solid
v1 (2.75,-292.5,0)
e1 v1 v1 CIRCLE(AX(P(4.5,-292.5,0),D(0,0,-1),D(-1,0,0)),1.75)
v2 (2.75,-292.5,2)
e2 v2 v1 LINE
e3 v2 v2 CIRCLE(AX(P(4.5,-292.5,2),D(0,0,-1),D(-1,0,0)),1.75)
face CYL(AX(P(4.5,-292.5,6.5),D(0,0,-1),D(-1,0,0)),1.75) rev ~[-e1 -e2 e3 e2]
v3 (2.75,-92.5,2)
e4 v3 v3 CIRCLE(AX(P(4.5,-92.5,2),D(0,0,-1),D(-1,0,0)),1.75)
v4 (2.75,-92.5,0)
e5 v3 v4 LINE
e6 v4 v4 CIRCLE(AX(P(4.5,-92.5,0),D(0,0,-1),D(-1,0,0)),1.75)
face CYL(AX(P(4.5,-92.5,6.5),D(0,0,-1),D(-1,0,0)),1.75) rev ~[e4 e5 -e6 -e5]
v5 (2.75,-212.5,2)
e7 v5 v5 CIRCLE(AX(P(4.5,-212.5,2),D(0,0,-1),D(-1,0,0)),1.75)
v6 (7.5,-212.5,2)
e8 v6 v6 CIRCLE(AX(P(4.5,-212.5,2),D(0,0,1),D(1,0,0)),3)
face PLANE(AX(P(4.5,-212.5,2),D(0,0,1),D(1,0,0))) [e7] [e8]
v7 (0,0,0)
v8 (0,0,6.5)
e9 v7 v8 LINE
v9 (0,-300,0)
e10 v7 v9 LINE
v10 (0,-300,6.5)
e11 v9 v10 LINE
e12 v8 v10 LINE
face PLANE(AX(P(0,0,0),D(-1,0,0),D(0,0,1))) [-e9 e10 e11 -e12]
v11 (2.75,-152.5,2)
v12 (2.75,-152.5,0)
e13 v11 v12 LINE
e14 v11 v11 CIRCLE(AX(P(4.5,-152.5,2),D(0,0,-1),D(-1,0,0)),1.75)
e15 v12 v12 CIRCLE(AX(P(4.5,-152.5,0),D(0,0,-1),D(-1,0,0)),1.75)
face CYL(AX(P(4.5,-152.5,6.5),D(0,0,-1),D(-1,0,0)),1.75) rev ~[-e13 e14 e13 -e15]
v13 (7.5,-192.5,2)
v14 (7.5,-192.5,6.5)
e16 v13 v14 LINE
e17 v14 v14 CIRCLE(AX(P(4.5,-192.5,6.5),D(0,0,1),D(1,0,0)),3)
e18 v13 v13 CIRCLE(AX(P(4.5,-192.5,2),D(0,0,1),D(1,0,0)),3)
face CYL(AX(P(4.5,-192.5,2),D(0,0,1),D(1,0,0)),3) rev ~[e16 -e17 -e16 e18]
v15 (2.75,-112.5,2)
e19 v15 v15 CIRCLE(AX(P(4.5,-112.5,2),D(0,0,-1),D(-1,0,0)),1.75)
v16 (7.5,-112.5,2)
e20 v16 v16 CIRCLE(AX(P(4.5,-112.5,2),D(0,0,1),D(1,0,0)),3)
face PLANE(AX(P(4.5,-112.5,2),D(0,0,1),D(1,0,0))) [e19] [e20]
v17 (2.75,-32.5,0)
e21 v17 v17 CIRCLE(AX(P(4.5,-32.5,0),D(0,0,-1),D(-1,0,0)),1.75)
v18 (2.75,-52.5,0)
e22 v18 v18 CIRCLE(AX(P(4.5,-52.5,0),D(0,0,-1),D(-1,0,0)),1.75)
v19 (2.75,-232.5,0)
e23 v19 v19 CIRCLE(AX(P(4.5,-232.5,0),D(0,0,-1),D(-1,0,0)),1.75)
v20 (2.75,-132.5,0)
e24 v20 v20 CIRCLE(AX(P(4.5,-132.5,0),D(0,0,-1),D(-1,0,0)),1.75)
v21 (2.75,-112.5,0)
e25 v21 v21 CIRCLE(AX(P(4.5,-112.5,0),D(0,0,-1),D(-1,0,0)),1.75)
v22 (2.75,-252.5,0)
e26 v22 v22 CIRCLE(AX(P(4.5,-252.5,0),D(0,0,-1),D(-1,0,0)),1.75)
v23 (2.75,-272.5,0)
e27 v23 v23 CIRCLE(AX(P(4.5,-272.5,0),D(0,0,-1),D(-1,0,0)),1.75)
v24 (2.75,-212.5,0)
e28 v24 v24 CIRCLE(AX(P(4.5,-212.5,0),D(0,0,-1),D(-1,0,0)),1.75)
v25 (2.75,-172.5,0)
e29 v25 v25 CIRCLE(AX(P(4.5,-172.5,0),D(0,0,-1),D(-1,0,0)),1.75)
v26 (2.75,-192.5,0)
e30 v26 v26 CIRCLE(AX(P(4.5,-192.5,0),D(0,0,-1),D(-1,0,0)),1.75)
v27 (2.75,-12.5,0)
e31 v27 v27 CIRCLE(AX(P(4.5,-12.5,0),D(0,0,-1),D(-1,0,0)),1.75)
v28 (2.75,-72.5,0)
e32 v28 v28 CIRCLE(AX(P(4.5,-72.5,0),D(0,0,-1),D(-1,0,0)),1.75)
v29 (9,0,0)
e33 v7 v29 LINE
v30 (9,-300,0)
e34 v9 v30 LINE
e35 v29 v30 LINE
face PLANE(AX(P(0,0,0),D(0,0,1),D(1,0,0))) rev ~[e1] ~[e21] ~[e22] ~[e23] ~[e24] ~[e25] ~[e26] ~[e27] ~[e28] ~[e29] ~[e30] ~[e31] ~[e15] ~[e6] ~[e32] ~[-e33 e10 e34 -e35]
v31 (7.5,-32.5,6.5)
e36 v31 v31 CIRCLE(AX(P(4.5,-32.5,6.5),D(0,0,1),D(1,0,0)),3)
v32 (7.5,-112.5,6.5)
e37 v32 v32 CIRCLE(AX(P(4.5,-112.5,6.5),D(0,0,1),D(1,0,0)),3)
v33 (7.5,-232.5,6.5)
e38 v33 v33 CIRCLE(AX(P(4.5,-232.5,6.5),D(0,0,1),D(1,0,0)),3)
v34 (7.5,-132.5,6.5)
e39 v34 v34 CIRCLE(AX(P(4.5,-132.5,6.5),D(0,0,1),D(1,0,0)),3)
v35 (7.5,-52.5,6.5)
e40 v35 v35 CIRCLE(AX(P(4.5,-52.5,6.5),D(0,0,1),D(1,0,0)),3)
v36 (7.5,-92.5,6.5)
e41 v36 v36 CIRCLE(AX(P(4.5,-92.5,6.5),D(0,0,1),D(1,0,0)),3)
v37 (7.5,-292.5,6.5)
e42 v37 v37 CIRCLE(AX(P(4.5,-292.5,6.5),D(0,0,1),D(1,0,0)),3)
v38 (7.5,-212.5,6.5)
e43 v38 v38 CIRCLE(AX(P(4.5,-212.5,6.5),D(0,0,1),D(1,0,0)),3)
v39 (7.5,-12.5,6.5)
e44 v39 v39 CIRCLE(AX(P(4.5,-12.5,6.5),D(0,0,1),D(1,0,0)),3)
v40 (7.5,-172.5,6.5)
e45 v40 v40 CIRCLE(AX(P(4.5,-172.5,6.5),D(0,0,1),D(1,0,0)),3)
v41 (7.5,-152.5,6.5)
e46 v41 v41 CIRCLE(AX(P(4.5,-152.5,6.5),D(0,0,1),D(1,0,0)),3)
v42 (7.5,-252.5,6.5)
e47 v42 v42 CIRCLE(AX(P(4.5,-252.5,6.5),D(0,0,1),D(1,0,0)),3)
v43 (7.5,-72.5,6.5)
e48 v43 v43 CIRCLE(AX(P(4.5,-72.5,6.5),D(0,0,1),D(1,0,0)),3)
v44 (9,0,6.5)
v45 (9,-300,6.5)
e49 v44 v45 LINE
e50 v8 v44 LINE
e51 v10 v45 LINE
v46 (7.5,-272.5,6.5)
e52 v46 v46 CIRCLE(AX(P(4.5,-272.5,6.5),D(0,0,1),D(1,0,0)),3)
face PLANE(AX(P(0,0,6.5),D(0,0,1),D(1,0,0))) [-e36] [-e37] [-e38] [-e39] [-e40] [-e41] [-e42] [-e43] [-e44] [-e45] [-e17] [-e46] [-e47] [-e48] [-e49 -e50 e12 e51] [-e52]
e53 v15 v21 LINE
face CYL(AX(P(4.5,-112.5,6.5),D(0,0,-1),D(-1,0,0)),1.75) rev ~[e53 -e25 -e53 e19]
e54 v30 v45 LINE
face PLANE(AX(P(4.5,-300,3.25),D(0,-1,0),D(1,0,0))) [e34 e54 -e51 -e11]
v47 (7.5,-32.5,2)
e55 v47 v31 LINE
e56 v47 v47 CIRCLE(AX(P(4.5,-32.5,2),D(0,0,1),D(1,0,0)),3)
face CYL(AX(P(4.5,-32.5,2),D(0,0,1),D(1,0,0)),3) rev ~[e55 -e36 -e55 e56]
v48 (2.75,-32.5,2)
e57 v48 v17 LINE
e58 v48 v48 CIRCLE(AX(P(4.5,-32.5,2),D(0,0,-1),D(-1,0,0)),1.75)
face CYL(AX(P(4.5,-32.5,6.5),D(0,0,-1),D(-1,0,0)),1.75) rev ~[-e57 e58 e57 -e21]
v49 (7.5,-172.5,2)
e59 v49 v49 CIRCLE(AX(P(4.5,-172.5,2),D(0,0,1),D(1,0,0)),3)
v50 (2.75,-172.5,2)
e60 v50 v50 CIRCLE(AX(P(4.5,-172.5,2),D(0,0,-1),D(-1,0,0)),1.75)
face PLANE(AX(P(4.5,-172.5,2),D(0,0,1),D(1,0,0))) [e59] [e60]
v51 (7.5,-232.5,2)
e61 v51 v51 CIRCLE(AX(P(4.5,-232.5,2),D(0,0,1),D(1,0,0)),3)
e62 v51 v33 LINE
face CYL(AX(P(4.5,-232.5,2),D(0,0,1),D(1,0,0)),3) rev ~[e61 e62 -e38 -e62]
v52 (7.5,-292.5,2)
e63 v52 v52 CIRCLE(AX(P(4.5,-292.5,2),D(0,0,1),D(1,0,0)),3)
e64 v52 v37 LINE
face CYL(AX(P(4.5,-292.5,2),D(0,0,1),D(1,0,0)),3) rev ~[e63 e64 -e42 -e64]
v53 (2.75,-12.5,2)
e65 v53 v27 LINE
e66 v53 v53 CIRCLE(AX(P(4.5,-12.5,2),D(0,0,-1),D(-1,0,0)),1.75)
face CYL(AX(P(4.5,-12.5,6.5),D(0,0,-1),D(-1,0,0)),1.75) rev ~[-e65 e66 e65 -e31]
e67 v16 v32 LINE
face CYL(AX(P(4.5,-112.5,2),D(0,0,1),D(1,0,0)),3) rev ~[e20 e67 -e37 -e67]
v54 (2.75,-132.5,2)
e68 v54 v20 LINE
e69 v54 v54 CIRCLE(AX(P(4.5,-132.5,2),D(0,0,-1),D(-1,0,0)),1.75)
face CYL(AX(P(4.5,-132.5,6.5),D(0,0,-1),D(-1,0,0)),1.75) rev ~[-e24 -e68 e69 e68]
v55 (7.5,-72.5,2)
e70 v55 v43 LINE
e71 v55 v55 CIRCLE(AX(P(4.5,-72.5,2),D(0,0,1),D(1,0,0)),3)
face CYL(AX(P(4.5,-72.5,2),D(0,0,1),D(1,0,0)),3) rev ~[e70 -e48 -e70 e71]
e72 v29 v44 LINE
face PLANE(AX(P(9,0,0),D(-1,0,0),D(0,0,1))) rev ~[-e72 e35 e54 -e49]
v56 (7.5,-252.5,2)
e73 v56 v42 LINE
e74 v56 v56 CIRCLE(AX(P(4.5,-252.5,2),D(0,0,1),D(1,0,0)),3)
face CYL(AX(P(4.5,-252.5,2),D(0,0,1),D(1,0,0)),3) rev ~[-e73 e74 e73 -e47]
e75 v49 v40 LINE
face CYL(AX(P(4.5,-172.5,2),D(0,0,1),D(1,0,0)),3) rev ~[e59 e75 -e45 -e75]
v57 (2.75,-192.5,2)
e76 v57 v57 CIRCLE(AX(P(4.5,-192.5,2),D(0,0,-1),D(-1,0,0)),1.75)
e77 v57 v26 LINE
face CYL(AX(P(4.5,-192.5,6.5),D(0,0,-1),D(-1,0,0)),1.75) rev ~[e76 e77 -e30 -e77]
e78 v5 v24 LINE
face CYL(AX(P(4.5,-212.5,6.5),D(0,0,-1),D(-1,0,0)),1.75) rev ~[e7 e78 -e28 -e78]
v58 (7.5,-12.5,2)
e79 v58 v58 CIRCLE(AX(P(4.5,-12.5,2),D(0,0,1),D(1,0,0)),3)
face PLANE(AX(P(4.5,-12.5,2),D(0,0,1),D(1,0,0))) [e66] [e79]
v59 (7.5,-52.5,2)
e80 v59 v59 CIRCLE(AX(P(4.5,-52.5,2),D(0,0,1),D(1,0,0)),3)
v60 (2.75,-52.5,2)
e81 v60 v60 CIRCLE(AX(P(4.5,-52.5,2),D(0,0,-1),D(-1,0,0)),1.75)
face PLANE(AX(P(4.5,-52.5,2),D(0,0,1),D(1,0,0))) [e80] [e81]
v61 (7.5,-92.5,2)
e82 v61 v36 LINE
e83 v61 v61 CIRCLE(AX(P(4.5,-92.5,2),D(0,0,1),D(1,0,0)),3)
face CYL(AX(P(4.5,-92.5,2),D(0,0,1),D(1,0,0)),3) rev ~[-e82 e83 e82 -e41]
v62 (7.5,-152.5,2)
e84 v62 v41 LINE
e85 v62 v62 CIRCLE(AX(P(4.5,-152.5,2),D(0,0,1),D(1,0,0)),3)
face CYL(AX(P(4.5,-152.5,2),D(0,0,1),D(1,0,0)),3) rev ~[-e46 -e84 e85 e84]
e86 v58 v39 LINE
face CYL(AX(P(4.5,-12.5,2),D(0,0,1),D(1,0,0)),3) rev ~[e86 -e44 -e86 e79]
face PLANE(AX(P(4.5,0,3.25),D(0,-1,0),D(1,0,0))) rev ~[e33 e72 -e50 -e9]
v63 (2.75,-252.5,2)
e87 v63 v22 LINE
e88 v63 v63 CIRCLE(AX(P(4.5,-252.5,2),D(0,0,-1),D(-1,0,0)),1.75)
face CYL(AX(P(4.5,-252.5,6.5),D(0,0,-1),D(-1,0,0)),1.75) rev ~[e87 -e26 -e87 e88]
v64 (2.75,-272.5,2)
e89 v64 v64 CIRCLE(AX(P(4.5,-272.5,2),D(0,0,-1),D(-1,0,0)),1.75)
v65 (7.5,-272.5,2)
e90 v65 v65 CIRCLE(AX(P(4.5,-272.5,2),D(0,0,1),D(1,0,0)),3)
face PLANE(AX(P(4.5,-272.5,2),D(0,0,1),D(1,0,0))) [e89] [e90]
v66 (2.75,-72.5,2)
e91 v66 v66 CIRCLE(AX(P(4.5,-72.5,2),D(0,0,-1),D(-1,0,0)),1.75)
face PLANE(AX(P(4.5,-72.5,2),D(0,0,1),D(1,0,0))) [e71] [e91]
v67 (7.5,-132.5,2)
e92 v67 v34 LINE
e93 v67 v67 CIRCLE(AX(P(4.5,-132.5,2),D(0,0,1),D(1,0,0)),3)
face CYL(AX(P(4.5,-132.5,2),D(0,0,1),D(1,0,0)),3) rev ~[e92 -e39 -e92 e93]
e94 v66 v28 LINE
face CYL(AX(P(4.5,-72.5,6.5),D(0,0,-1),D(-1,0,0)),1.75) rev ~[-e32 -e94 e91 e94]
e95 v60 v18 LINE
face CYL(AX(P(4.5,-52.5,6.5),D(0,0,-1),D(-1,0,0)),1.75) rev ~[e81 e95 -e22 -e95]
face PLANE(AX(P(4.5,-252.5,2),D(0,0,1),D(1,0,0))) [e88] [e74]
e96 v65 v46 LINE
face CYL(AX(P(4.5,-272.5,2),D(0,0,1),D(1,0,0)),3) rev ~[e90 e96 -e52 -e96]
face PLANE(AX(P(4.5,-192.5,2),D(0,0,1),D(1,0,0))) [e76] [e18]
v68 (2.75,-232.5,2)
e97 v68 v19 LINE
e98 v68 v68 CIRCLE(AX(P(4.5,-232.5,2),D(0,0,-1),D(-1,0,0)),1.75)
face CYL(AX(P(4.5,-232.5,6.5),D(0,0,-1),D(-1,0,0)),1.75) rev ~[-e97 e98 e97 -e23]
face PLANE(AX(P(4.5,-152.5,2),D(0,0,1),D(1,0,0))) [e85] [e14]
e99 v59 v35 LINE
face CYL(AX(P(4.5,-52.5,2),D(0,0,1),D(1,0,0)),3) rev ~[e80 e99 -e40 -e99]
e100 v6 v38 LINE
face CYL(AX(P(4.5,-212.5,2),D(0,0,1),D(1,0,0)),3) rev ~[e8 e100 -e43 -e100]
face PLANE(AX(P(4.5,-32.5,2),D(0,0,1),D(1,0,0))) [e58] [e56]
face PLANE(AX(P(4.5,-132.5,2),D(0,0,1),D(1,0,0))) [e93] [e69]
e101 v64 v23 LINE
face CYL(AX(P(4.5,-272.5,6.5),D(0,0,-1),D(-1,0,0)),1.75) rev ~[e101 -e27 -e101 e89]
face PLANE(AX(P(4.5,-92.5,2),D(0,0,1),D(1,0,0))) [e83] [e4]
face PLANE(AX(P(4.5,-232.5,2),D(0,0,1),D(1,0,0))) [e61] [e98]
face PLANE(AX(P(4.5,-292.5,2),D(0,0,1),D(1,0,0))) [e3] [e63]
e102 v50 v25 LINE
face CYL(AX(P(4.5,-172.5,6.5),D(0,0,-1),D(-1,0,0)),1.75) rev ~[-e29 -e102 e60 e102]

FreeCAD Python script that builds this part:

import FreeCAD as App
import Part
import Sketcher

V = App.Vector


def add_polygon(sketch, points):
    """Adds a closed chain of lines whose ends are joined by coincident constraints."""
    first, n = sketch.GeometryCount, len(points)
    for a, b in zip(points, points[1:] + points[:1]):
        sketch.addGeometry(Part.LineSegment(App.Vector(*a, 0), App.Vector(*b, 0)), False)
    for i in range(n):
        sketch.addConstraint(Sketcher.Constraint("Coincident", first + i, 2, first + (i + 1) % n, 1))

doc = App.newDocument("Part")
body = doc.addObject("PartDesign::Body", "Body")

sketch1 = body.newObject("Sketcher::SketchObject", "Sketch")
sketch1.AttachmentSupport = (doc.getObject("XZ_Plane"), [""])
sketch1.MapMode = "FlatFace"
add_polygon(sketch1, [(0, 6), (0, 0), (9, 0), (9, 6)])
sketch1.addConstraint(Sketcher.Constraint("Vertical", 0))
sketch1.addConstraint(Sketcher.Constraint("Horizontal", 1))
sketch1.addConstraint(Sketcher.Constraint("Vertical", 2))
sketch1.addConstraint(Sketcher.Constraint("Horizontal", 3))
sketch1.addConstraint(Sketcher.Constraint("Coincident", 0, 2, -1, 1))
sketch1.addConstraint(Sketcher.Constraint("DistanceX", 1, 1, 1, 2, 9.0))
sketch1.addConstraint(Sketcher.Constraint("DistanceY", 0, 2, 0, 1, 6.5))
pad1 = body.newObject("PartDesign::Pad", "Pad")
pad1.Profile = sketch1
pad1.Length = 300

sketch2 = body.newObject("Sketcher::SketchObject", "Sketch001")
sketch2.AttachmentSupport = (doc.getObject("XY_Plane"), [""])
sketch2.MapMode = "FlatFace"
sketch2.AttachmentOffset = App.Placement(V(0, 0, 6.5), App.Rotation())
sketch2.addGeometry(Part.Circle(V(4.5, -292.5, 0), V(0, 0, 1), 1.8), False)
sketch2.addGeometry(Part.Circle(V(4.5, -272.5, 0), V(0, 0, 1), 1.8), False)
sketch2.addGeometry(Part.Circle(V(4.5, -252.5, 0), V(0, 0, 1), 1.8), False)
sketch2.addGeometry(Part.Circle(V(4.5, -232.5, 0), V(0, 0, 1), 1.8), False)
sketch2.addGeometry(Part.Circle(V(4.5, -212.5, 0), V(0, 0, 1), 1.8), False)
sketch2.addGeometry(Part.Circle(V(4.5, -192.5, 0), V(0, 0, 1), 1.8), False)
sketch2.addGeometry(Part.Circle(V(4.5, -172.5, 0), V(0, 0, 1), 1.8), False)
sketch2.addGeometry(Part.Circle(V(4.5, -152.5, 0), V(0, 0, 1), 1.8), False)
sketch2.addGeometry(Part.Circle(V(4.5, -132.5, 0), V(0, 0, 1), 1.8), False)
sketch2.addGeometry(Part.Circle(V(4.5, -112.5, 0), V(0, 0, 1), 1.8), False)
sketch2.addGeometry(Part.Circle(V(4.5, -92.5, 0), V(0, 0, 1), 1.8), False)
sketch2.addGeometry(Part.Circle(V(4.5, -72.5, 0), V(0, 0, 1), 1.8), False)
sketch2.addGeometry(Part.Circle(V(4.5, -52.5, 0), V(0, 0, 1), 1.8), False)
sketch2.addGeometry(Part.Circle(V(4.5, -32.5, 0), V(0, 0, 1), 1.8), False)
sketch2.addGeometry(Part.Circle(V(4.5, -12.5, 0), V(0, 0, 1), 1.8), False)
sketch2.addConstraint(Sketcher.Constraint("Equal", 0, 1))
sketch2.addConstraint(Sketcher.Constraint("Equal", 1, 2))
sketch2.addConstraint(Sketcher.Constraint("Equal", 2, 3))
sketch2.addConstraint(Sketcher.Constraint("Equal", 3, 4))
sketch2.addConstraint(Sketcher.Constraint("Equal", 4, 5))
sketch2.addConstraint(Sketcher.Constraint("Equal", 5, 6))
sketch2.addConstraint(Sketcher.Constraint("Equal", 6, 7))
sketch2.addConstraint(Sketcher.Constraint("Equal", 7, 8))
sketch2.addConstraint(Sketcher.Constraint("Equal", 8, 9))
sketch2.addConstraint(Sketcher.Constraint("Equal", 9, 10))
sketch2.addConstraint(Sketcher.Constraint("Equal", 10, 11))
sketch2.addConstraint(Sketcher.Constraint("Equal", 11, 12))
sketch2.addConstraint(Sketcher.Constraint("Equal", 12, 13))
sketch2.addConstraint(Sketcher.Constraint("Equal", 13, 14))
sketch2.addConstraint(Sketcher.Constraint("Vertical", 0, 3, 1, 3))
sketch2.addConstraint(Sketcher.Constraint("Vertical", 1, 3, 2, 3))
sketch2.addConstraint(Sketcher.Constraint("Vertical", 2, 3, 3, 3))
sketch2.addConstraint(Sketcher.Constraint("Vertical", 3, 3, 4, 3))
sketch2.addConstraint(Sketcher.Constraint("Vertical", 4, 3, 5, 3))
sketch2.addConstraint(Sketcher.Constraint("Vertical", 5, 3, 6, 3))
sketch2.addConstraint(Sketcher.Constraint("Vertical", 6, 3, 7, 3))
sketch2.addConstraint(Sketcher.Constraint("Vertical", 7, 3, 8, 3))
sketch2.addConstraint(Sketcher.Constraint("Vertical", 8, 3, 9, 3))
sketch2.addConstraint(Sketcher.Constraint("Vertical", 9, 3, 10, 3))
sketch2.addConstraint(Sketcher.Constraint("Vertical", 10, 3, 11, 3))
sketch2.addConstraint(Sketcher.Constraint("Vertical", 11, 3, 12, 3))
sketch2.addConstraint(Sketcher.Constraint("Vertical", 12, 3, 13, 3))
sketch2.addConstraint(Sketcher.Constraint("Vertical", 13, 3, 14, 3))
sketch2.addConstraint(Sketcher.Constraint("Diameter", 0, 3.5))
sketch2.addConstraint(Sketcher.Constraint("DistanceY", 0, 3, 1, 3, 20.0))
sketch2.addConstraint(Sketcher.Constraint("DistanceY", 1, 3, 2, 3, 20.0))
sketch2.addConstraint(Sketcher.Constraint("DistanceY", 2, 3, 3, 3, 20.0))
sketch2.addConstraint(Sketcher.Constraint("DistanceY", 3, 3, 4, 3, 20.0))
sketch2.addConstraint(Sketcher.Constraint("DistanceY", 4, 3, 5, 3, 20.0))
sketch2.addConstraint(Sketcher.Constraint("DistanceY", 5, 3, 6, 3, 20.0))
sketch2.addConstraint(Sketcher.Constraint("DistanceY", 6, 3, 7, 3, 20.0))
sketch2.addConstraint(Sketcher.Constraint("DistanceY", 7, 3, 8, 3, 20.0))
sketch2.addConstraint(Sketcher.Constraint("DistanceY", 8, 3, 9, 3, 20.0))
sketch2.addConstraint(Sketcher.Constraint("DistanceY", 9, 3, 10, 3, 20.0))
sketch2.addConstraint(Sketcher.Constraint("DistanceY", 10, 3, 11, 3, 20.0))
sketch2.addConstraint(Sketcher.Constraint("DistanceY", 11, 3, 12, 3, 20.0))
sketch2.addConstraint(Sketcher.Constraint("DistanceY", 12, 3, 13, 3, 20.0))
sketch2.addConstraint(Sketcher.Constraint("DistanceY", 13, 3, 14, 3, 20.0))
sketch2.addConstraint(Sketcher.Constraint("DistanceX", -1, 1, 0, 3, 4.5))
sketch2.addConstraint(Sketcher.Constraint("DistanceY", 0, 3, -1, 1, 292.5))
doc.recompute()
hole = body.newObject("PartDesign::Hole", "Hole")
hole.Profile = sketch2
hole.ThreadType = "None"
hole.Diameter = 3.5
hole.DepthType = "ThroughAll"
hole.HoleCutType = "Counterbore"
hole.HoleCutDiameter = 6
hole.HoleCutDepth = 4.5

doc.recompute()
